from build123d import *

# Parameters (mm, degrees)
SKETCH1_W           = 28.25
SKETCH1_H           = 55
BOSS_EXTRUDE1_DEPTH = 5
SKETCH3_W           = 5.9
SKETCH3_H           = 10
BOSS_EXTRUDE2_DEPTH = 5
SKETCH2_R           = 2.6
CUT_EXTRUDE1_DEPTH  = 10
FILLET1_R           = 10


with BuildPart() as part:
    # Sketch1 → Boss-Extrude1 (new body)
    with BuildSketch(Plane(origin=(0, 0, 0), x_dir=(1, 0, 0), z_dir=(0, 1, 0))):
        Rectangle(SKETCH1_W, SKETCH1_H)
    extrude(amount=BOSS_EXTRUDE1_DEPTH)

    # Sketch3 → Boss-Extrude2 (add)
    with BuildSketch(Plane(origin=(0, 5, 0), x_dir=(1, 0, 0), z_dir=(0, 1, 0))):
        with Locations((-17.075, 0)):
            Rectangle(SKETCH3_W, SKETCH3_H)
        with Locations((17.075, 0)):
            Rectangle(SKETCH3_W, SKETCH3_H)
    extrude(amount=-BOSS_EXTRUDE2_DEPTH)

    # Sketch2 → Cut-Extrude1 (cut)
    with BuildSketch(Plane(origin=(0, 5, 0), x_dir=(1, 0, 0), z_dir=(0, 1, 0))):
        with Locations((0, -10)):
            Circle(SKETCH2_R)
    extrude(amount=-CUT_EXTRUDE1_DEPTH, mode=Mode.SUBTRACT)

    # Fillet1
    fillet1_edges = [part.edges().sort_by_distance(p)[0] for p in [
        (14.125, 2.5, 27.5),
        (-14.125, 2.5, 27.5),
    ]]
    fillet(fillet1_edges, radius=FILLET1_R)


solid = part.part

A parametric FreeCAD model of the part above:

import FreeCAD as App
import Part
import Sketcher

V = App.Vector


def edges_at(feature, points):
    """Names of the edges that pass closest to the given points."""
    edges = feature.Shape.Edges
    near = lambda p: min(range(len(edges)), key=lambda i: edges[i].distToShape(Part.Vertex(*p))[0])
    return sorted({f"Edge{near(p) + 1}" for p in points})


def add_polygon(sketch, points):
    """Adds a closed chain of lines whose ends are joined by coincident constraints."""
    first, n = sketch.GeometryCount, len(points)
    for a, b in zip(points, points[1:] + points[:1]):
        sketch.addGeometry(Part.LineSegment(App.Vector(*a, 0), App.Vector(*b, 0)), False)
    for i in range(n):
        sketch.addConstraint(Sketcher.Constraint("Coincident", first + i, 2, first + (i + 1) % n, 1))

doc = App.newDocument("Part")
body = doc.addObject("PartDesign::Body", "Body")

# Sketch on XZ plane
sketch1 = body.newObject("Sketcher::SketchObject", "Sketch")
sketch1.AttachmentSupport = (doc.getObject("XZ_Plane"), [""])
sketch1.MapMode = "FlatFace"
add_polygon(sketch1, [(-14, -28), (-14, 28), (14, 28), (14, -28)])  # lines 0-3
sketch1.addConstraint(Sketcher.Constraint("Vertical", 0))
sketch1.addConstraint(Sketcher.Constraint("Horizontal", 1))
sketch1.addConstraint(Sketcher.Constraint("Vertical", 2))
sketch1.addConstraint(Sketcher.Constraint("Horizontal", 3))
sketch1.addConstraint(Sketcher.Constraint("Symmetric", 0, 2, 2, 2, -1, 1))
sketch1.addConstraint(Sketcher.Constraint("DistanceY", 0, 1, 0, 2, 55.0))
sketch1.addConstraint(Sketcher.Constraint("DistanceX", 1, 1, 1, 2, 28.25))
pad1 = body.newObject("PartDesign::Pad", "Pad")
pad1.Profile = sketch1
pad1.Length = 5
pad1.Reversed = True

# Sketch on XZ plane
sketch2 = body.newObject("Sketcher::SketchObject", "Sketch001")
sketch2.AttachmentSupport = (doc.getObject("XZ_Plane"), [""])
sketch2.MapMode = "FlatFace"
sketch2.AttachmentOffset = App.Placement(V(0, 0, -5), App.Rotation())
add_polygon(sketch2, [(-20, -5), (-20, 5), (-14, 5), (-14, -5)])  # lines 0-3
add_polygon(sketch2, [(14, -5), (14, 5), (20, 5), (20, -5)])  # lines 4-7
sketch2.addConstraint(Sketcher.Constraint("Vertical", 0))
sketch2.addConstraint(Sketcher.Constraint("Horizontal", 1))
sketch2.addConstraint(Sketcher.Constraint("Vertical", 2))
sketch2.addConstraint(Sketcher.Constraint("Horizontal", 3))
sketch2.addConstraint(Sketcher.Constraint("Vertical", 4))
sketch2.addConstraint(Sketcher.Constraint("Horizontal", 5))
sketch2.addConstraint(Sketcher.Constraint("Vertical", 6))
sketch2.addConstraint(Sketcher.Constraint("Horizontal", 7))
sketch2.addConstraint(Sketcher.Constraint("Symmetric", 2, 2, 4, 2, -1, 1))
sketch2.addConstraint(Sketcher.Constraint("Symmetric", 0, 2, 6, 2, -1, 1))
sketch2.addConstraint(Sketcher.Constraint("Horizontal", 1, 2, 4, 2))
sketch2.addConstraint(Sketcher.Constraint("DistanceY", 0, 1, 0, 2, 10.0))
sketch2.addConstraint(Sketcher.Constraint("DistanceX", 1, 1, 1, 2, 5.9))
sketch2.addConstraint(Sketcher.Constraint("DistanceX", 1, 2, 4, 2, 28.25))
pad2 = body.newObject("PartDesign::Pad", "Pad001")
pad2.Profile = sketch2
pad2.Length = 5

# Sketch on XZ plane
sketch3 = body.newObject("Sketcher::SketchObject", "Sketch002")
sketch3.AttachmentSupport = (doc.getObject("XZ_Plane"), [""])
sketch3.MapMode = "FlatFace"
sketch3.AttachmentOffset = App.Placement(V(0, 0, -5), App.Rotation())
sketch3.addGeometry(Part.Circle(V(0, 10, 0), V(0, 0, 1), 2.6), False)
sketch3.addConstraint(Sketcher.Constraint("PointOnObject", 0, 3, -2))
sketch3.addConstraint(Sketcher.Constraint("Diameter", 0, 5.2))
sketch3.addConstraint(Sketcher.Constraint("DistanceY", -1, 1, 0, 3, 10.0))
pocket1 = body.newObject("PartDesign::Pocket", "Pocket")
pocket1.Profile = sketch3
pocket1.Length = 10
pocket1.Reversed = True
doc.recompute()

fillet = body.newObject("PartDesign::Fillet", "Fillet")
fillet.Base = (pocket1, edges_at(pocket1, [(14.125, 2.5, 27.5), (-14.125, 2.5, 27.5)]))
fillet.Radius = 10

doc.recompute()
